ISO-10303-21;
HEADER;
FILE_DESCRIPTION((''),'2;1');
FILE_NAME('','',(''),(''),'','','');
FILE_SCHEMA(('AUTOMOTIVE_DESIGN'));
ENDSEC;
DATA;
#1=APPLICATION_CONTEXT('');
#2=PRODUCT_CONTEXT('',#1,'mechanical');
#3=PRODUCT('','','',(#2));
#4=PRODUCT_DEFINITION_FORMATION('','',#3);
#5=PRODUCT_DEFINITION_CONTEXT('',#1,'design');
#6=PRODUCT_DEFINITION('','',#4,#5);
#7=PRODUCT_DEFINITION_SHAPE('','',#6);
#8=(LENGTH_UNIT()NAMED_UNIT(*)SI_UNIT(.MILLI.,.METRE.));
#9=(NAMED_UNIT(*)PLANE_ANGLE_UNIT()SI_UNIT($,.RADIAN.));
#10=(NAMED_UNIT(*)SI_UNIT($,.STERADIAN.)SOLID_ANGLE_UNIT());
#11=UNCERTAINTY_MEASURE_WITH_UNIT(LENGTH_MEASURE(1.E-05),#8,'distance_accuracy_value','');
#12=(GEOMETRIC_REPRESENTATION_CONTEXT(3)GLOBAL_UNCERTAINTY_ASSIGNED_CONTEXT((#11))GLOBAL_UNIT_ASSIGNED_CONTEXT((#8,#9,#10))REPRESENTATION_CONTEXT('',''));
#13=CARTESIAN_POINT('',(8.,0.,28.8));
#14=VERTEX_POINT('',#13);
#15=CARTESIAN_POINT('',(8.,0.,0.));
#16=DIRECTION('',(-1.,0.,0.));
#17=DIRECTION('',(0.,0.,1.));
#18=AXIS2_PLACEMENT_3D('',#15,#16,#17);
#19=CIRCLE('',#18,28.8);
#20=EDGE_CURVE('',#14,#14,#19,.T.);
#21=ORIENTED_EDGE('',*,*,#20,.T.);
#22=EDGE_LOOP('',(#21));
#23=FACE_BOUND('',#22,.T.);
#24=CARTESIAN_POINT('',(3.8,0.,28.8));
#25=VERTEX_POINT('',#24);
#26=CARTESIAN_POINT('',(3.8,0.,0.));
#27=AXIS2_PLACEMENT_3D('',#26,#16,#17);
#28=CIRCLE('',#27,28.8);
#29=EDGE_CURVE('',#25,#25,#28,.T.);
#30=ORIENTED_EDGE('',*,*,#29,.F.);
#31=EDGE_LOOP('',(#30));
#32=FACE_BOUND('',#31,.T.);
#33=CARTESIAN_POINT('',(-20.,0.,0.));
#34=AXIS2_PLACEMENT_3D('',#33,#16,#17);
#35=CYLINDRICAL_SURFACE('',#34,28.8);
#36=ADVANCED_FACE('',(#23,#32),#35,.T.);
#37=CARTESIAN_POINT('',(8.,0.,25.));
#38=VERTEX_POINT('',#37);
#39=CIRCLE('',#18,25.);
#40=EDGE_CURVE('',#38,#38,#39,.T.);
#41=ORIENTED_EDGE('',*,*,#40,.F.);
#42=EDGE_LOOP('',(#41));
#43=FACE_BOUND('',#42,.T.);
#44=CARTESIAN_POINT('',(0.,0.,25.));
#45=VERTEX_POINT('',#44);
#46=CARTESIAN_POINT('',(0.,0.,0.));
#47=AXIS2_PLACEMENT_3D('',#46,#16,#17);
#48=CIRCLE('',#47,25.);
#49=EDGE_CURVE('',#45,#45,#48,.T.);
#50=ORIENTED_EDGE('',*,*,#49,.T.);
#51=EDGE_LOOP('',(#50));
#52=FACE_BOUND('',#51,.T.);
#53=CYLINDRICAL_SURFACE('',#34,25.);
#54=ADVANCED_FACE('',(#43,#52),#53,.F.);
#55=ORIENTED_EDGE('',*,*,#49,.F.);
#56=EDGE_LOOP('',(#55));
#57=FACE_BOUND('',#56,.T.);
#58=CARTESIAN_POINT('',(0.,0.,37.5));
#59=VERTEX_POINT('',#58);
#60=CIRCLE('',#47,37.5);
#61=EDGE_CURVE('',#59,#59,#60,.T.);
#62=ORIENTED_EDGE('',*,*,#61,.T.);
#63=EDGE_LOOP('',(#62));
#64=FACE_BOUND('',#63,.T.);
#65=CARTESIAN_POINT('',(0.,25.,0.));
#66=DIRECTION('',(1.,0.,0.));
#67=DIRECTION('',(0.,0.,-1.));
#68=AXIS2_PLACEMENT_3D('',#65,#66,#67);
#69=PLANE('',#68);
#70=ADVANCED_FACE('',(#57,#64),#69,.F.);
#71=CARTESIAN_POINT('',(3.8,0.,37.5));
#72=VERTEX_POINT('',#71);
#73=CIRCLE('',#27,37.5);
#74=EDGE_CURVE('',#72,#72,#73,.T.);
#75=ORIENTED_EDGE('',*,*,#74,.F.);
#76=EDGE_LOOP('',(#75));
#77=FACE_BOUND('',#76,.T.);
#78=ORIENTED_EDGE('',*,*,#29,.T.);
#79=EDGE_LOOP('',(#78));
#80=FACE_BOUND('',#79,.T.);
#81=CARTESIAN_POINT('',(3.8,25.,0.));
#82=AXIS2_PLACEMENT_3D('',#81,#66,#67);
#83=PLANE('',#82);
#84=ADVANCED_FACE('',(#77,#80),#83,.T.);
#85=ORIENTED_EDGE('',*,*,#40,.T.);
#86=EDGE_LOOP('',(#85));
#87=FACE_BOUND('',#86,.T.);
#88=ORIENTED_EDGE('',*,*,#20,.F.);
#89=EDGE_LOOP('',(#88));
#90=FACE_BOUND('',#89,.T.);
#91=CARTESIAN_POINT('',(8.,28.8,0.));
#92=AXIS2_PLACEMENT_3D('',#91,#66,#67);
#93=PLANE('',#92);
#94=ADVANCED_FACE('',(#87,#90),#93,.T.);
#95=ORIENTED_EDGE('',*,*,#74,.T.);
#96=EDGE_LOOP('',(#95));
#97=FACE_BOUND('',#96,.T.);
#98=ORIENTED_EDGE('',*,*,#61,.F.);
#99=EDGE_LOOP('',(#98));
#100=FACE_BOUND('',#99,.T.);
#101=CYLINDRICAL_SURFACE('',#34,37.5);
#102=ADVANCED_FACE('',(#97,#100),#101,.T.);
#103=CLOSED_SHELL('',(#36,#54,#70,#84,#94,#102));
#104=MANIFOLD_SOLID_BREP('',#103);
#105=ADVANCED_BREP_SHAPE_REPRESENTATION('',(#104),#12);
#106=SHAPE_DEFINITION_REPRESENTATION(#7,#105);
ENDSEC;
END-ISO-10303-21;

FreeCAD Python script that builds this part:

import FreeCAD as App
import Part
import Sketcher

V = App.Vector


def add_polygon(sketch, points):
    """Adds a closed chain of lines whose ends are joined by coincident constraints."""
    first, n = sketch.GeometryCount, len(points)
    for a, b in zip(points, points[1:] + points[:1]):
        sketch.addGeometry(Part.LineSegment(App.Vector(*a, 0), App.Vector(*b, 0)), False)
    for i in range(n):
        sketch.addConstraint(Sketcher.Constraint("Coincident", first + i, 2, first + (i + 1) % n, 1))

doc = App.newDocument("Part")
body = doc.addObject("PartDesign::Body", "Body")

sketch1 = doc.addObject("Sketcher::SketchObject", "Sketch")
body.addObject(sketch1)
sketch1.AttachmentSupport = (doc.XY_Plane, [""])
sketch1.MapMode = "FlatFace"
add_polygon(sketch1, [(0, 25), (8, 25), (8, 28.8), (3.8, 28.8), (3.8, 37.5), (0, 37.5)])
sketch1.addConstraint([
    Sketcher.Constraint("Horizontal", 0),
    Sketcher.Constraint("Vertical", 1),
    Sketcher.Constraint("Horizontal", 2),
    Sketcher.Constraint("Vertical", 3),
    Sketcher.Constraint("Horizontal", 4),
    Sketcher.Constraint("Vertical", 5),
    Sketcher.Constraint("PointOnObject", 4, 2, -2),
    Sketcher.Constraint("Equal", 4, 1),
    Sketcher.Constraint("DistanceX", 0, 1, 0, 2, 8.0),
    Sketcher.Constraint("DistanceX", 2, 2, 2, 1, 4.2),
    Sketcher.Constraint("DistanceY", 3, 1, 3, 2, 8.7),
    Sketcher.Constraint("DistanceY", -1, 1, 0, 2, 25.0),
])
revolution = doc.addObject("PartDesign::Revolution", "Revolution")
body.addObject(revolution)
revolution.Profile = sketch1
revolution.ReferenceAxis = (sketch1, ["H_Axis"])
revolution.Angle = 360

doc.recompute()
